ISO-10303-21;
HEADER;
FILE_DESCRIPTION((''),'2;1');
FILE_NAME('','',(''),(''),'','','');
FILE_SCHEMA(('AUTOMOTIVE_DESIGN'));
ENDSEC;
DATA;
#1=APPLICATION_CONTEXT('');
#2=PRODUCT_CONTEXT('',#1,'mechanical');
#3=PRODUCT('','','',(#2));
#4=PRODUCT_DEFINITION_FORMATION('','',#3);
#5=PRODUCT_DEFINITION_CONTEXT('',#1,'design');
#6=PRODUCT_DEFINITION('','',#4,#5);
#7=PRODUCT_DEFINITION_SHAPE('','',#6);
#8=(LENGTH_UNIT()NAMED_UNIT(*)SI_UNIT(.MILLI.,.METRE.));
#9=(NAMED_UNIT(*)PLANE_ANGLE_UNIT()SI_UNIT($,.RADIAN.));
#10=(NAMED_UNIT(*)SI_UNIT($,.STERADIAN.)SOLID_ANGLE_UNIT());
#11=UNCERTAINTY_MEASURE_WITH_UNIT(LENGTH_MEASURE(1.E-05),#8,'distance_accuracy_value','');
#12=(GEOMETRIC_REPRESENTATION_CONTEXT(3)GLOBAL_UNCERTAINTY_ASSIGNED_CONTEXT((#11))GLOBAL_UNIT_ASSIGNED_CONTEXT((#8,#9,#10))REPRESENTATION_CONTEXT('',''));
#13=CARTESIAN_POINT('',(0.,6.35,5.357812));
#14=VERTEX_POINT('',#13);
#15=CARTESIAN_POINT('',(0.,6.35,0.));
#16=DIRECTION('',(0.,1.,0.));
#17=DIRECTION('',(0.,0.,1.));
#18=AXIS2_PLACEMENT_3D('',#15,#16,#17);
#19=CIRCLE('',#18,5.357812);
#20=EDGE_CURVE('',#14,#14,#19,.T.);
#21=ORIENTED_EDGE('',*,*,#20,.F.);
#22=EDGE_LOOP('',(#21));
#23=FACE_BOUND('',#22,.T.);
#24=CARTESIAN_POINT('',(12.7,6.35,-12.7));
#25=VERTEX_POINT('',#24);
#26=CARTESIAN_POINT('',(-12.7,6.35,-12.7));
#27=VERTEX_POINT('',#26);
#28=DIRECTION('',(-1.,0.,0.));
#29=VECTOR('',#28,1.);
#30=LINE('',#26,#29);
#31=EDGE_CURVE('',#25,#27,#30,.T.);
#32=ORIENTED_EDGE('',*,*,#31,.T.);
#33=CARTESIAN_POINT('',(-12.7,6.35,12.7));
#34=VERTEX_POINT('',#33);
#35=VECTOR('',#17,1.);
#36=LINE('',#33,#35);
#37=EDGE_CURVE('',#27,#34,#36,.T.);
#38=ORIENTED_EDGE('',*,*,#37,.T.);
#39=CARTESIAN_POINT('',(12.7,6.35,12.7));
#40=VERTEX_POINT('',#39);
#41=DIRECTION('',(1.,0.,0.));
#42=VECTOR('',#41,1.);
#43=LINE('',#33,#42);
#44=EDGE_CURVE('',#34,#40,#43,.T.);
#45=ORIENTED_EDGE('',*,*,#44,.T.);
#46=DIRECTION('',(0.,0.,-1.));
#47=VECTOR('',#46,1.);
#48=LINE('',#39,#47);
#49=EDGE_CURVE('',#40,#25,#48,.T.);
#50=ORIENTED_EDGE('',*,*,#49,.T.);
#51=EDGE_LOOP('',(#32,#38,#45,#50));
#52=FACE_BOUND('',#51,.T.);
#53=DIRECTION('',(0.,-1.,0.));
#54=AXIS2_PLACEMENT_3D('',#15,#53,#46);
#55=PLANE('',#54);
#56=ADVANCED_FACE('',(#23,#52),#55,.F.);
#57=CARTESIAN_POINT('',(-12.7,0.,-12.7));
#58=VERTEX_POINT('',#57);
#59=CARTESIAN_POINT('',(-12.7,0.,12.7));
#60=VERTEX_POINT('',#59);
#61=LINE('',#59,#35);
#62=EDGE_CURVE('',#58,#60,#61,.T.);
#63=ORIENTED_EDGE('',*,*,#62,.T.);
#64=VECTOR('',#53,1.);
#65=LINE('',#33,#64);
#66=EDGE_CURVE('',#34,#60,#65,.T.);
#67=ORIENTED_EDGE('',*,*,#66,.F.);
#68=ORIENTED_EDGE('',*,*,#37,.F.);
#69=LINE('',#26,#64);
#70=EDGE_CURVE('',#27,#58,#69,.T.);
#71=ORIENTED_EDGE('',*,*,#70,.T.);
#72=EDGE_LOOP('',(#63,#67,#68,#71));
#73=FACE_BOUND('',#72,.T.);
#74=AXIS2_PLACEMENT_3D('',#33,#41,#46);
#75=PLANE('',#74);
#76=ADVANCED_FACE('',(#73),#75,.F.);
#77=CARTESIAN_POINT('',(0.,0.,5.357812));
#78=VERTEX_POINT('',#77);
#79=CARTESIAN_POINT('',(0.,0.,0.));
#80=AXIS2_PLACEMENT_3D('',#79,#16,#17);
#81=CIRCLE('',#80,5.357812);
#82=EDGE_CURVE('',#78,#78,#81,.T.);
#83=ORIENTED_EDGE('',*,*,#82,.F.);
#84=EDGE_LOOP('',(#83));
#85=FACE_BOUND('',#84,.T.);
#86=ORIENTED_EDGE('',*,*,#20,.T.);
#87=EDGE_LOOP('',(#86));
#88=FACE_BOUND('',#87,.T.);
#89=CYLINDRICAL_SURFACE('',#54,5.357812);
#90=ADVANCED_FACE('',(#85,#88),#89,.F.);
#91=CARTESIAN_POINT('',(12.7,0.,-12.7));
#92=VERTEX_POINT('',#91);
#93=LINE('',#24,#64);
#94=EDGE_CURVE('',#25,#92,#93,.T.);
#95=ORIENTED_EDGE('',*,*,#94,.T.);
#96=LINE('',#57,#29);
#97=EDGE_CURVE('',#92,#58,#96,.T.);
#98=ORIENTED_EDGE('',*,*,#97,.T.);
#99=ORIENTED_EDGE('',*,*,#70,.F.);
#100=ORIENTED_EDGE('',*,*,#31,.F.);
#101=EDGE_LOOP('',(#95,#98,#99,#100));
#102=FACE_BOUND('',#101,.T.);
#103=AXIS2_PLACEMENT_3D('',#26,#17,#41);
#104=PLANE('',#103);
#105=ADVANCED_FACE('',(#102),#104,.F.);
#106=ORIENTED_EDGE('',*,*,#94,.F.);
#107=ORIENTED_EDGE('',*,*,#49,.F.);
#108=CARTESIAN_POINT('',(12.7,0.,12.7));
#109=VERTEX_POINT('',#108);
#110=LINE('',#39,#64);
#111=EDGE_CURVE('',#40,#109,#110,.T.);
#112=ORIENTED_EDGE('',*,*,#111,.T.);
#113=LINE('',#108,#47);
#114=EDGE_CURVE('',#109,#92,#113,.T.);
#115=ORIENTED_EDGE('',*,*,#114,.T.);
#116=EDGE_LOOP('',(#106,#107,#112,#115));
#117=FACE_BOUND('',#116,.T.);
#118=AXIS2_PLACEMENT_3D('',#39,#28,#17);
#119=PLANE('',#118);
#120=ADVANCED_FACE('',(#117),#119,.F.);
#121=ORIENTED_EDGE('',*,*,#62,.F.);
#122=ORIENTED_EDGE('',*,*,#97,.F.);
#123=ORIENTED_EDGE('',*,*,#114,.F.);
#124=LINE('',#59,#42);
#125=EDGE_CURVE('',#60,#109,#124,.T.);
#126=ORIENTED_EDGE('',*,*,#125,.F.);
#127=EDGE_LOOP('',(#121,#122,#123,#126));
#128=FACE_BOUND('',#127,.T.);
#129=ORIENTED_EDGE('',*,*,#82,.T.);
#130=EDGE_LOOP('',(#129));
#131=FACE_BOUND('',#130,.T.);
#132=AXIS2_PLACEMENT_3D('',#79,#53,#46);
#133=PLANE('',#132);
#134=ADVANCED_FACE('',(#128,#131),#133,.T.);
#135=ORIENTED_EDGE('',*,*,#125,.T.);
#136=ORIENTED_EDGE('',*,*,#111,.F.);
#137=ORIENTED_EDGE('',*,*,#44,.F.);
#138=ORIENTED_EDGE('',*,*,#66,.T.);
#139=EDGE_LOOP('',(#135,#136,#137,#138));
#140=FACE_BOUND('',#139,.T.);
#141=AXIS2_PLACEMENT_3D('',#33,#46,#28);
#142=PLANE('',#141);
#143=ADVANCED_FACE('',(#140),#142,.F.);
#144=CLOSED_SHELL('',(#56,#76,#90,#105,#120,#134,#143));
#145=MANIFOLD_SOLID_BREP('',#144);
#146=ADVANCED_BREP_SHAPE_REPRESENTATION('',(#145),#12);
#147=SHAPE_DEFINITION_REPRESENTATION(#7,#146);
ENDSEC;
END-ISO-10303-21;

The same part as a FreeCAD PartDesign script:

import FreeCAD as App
import Part
import Sketcher

V = App.Vector
Q = App.Units.Quantity

doc = App.newDocument("Part")
body = doc.addObject("PartDesign::Body", "Body")

# Sketch on XZ plane
sketch1 = body.newObject("Sketcher::SketchObject", "Sketch")
sketch1.AttachmentSupport = (doc.getObject("XZ_Plane"), [""])
sketch1.MapMode = "FlatFace"
sketch1.addGeometry(Part.LineSegment(V(-13, -13, 0), V(-13, 13, 0)), False)
sketch1.addGeometry(Part.LineSegment(V(-13, 13, 0), V(13, 13, 0)), False)
sketch1.addGeometry(Part.LineSegment(V(13, 13, 0), V(13, -13, 0)), False)
sketch1.addGeometry(Part.LineSegment(V(13, -13, 0), V(-13, -13, 0)), False)
sketch1.addGeometry(Part.Circle(V(0, 0, 0), V(0, 0, 1), 5), False)
sketch1.addConstraint(Sketcher.Constraint("Coincident", 0, 2, 1, 1))
sketch1.addConstraint(Sketcher.Constraint("Coincident", 1, 2, 2, 1))
sketch1.addConstraint(Sketcher.Constraint("Coincident", 2, 2, 3, 1))
sketch1.addConstraint(Sketcher.Constraint("Coincident", 3, 2, 0, 1))
sketch1.addConstraint(Sketcher.Constraint("Vertical", 0))
sketch1.addConstraint(Sketcher.Constraint("Horizontal", 1))
sketch1.addConstraint(Sketcher.Constraint("Vertical", 2))
sketch1.addConstraint(Sketcher.Constraint("Horizontal", 3))
sketch1.addConstraint(Sketcher.Constraint("Coincident", 4, 3, -1, 1))
sketch1.addConstraint(Sketcher.Constraint("Symmetric", 0, 2, 2, 2, -1, 1))
sketch1.addConstraint(Sketcher.Constraint("Equal", 3, 0))
sketch1.addConstraint(Sketcher.Constraint("DistanceX", 1, 1, 1, 2, Q("1 in")))
sketch1.addConstraint(Sketcher.Constraint("Diameter", 4, Q("0.421875 in")))
pad1 = body.newObject("PartDesign::Pad", "Pad")
pad1.Profile = sketch1
pad1.Length = Q("0.25 in")
pad1.Reversed = True

doc.recompute()
